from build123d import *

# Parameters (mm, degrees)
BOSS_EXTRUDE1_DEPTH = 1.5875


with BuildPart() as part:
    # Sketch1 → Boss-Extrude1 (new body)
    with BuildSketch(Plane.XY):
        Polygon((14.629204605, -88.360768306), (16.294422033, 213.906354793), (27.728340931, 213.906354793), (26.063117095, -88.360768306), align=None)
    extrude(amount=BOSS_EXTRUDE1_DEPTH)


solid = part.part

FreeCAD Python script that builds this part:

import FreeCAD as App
import Part
import Sketcher

V = App.Vector
Q = App.Units.Quantity

doc = App.newDocument("Part")
body = doc.addObject("PartDesign::Body", "Body")

# Sketch on XY plane
sketch1 = body.newObject("Sketcher::SketchObject", "Sketch")
sketch1.AttachmentSupport = (doc.getObject("XY_Plane"), [""])
sketch1.MapMode = "FlatFace"
sketch1.addGeometry(Part.LineSegment(V(16, 214, 0), V(15, -88, 0)), False)
sketch1.addGeometry(Part.LineSegment(V(15, -88, 0), V(26, -88, 0)), False)
sketch1.addGeometry(Part.LineSegment(V(26, -88, 0), V(28, 214, 0)), False)
sketch1.addGeometry(Part.LineSegment(V(28, 214, 0), V(16, 214, 0)), False)
sketch1.addConstraint(Sketcher.Constraint("Coincident", 0, 2, 1, 1))
sketch1.addConstraint(Sketcher.Constraint("Coincident", 1, 2, 2, 1))
sketch1.addConstraint(Sketcher.Constraint("Coincident", 2, 2, 3, 1))
sketch1.addConstraint(Sketcher.Constraint("Coincident", 3, 2, 0, 1))
sketch1.addConstraint(Sketcher.Constraint("Horizontal", 1))
sketch1.addConstraint(Sketcher.Constraint("Horizontal", 3))
sketch1.addConstraint(Sketcher.Constraint("Parallel", 0, 2))
sketch1.addConstraint(Sketcher.Constraint("DistanceX", 3, 2, 3, 1, 11.433919))
sketch1.addConstraint(Sketcher.Constraint("Distance", 0, 302.27171))
sketch1.addConstraint(Sketcher.Constraint("DistanceY", 0, 2, -1, 1, 88.360768))
sketch1.addConstraint(Sketcher.Constraint("DistanceX", -1, 1, 2, 2, 27.728341))
sketch1.addConstraint(Sketcher.Constraint("DistanceX", -1, 1, 0, 2, 14.629205))
pad1 = body.newObject("PartDesign::Pad", "Pad")
pad1.Profile = sketch1
pad1.Length = Q("0.0625 in")

doc.recompute()
